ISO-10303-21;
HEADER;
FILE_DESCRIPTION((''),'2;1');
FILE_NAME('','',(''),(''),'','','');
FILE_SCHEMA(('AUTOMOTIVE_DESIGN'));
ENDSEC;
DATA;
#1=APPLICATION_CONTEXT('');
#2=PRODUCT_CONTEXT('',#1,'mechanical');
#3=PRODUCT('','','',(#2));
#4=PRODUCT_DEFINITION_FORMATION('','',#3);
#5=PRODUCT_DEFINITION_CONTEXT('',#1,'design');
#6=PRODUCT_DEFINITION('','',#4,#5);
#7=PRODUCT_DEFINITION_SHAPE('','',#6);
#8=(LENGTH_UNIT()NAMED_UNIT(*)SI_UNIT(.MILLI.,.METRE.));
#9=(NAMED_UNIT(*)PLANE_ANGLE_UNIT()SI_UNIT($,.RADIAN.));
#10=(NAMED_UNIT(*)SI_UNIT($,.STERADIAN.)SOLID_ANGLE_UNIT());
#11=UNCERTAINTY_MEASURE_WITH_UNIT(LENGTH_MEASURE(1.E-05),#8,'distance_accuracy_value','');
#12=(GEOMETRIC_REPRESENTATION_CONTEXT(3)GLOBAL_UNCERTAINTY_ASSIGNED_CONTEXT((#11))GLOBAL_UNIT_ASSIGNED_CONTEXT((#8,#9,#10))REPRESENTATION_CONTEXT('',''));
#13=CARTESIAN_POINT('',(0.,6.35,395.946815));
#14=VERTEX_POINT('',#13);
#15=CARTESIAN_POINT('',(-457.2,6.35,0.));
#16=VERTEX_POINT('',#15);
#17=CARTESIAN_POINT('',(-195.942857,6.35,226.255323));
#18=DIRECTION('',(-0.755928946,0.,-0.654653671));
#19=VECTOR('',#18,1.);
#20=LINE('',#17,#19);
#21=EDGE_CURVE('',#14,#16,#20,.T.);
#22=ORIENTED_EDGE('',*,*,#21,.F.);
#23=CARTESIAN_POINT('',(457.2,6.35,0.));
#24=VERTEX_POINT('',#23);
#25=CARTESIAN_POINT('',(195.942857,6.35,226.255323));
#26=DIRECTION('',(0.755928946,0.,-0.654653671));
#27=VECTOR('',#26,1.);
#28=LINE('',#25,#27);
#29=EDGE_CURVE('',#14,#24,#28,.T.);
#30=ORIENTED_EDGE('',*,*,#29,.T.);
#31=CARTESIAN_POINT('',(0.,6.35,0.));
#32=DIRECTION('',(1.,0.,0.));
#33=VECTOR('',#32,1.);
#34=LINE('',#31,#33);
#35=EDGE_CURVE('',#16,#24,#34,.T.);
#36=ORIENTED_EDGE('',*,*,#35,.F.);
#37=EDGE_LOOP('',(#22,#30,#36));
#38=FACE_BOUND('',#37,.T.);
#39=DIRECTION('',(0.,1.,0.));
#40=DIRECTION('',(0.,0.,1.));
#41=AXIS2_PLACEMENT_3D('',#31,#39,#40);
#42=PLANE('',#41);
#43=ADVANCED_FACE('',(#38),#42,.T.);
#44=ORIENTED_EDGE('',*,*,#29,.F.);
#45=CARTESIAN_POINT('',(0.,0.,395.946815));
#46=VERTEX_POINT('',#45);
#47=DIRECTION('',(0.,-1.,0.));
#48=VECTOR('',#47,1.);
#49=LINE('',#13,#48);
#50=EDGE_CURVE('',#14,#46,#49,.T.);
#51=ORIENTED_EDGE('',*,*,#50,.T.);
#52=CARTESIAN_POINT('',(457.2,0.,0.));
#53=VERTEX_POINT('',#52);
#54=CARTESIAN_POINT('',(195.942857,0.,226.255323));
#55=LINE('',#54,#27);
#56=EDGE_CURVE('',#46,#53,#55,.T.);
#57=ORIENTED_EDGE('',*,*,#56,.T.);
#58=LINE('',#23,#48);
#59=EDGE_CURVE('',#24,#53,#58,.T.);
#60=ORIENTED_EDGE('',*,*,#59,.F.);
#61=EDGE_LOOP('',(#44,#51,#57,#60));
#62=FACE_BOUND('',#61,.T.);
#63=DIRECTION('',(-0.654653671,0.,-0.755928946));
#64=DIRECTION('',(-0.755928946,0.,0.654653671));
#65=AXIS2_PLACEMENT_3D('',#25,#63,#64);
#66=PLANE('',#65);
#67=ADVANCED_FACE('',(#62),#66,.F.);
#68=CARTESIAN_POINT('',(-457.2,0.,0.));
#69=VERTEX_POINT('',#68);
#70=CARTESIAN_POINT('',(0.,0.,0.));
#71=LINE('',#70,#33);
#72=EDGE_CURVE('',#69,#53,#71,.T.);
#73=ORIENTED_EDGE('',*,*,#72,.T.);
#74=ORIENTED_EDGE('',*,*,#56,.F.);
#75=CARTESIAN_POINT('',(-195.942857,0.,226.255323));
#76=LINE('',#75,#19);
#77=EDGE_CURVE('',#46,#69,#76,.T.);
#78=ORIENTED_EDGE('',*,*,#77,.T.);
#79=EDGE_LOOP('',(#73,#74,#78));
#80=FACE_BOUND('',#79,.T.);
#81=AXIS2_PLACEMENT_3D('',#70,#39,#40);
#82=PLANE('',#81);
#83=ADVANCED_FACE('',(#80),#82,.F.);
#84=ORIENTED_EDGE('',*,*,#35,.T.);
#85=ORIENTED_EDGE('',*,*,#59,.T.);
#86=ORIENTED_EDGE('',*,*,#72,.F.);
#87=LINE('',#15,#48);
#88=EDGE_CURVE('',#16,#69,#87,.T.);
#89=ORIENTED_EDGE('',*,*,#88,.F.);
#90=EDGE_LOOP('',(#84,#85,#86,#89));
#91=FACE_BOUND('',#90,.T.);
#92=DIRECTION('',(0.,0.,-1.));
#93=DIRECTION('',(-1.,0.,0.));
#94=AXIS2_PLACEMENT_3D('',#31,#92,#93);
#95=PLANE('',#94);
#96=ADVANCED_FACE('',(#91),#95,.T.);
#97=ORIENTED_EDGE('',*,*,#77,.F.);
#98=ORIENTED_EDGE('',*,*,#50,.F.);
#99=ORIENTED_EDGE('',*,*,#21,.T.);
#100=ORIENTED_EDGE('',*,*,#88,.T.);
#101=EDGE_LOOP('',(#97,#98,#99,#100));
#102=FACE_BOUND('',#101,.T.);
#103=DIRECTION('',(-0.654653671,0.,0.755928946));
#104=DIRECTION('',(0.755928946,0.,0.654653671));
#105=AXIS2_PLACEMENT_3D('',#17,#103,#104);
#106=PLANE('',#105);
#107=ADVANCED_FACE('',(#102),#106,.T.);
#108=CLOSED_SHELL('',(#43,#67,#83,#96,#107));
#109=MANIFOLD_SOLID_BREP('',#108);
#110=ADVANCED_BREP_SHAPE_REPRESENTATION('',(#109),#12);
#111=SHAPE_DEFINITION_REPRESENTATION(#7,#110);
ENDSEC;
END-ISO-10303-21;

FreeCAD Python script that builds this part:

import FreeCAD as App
import Part
import Sketcher
from FreeCAD import Vector
Q = App.Units.Quantity

doc = App.newDocument("Part")
body = doc.addObject("PartDesign::Body", "Body")

# Sketch on XZ plane
sketch1 = doc.addObject("Sketcher::SketchObject", "Sketch")
body.addObject(sketch1)
sketch1.AttachmentSupport = (doc.XZ_Plane, [""])
sketch1.MapMode = "FlatFace"
sketch1.addGeometry([
    Part.LineSegment(Vector(-457, 0, 0), Vector(0, 396, 0)),
    Part.LineSegment(Vector(0, 396, 0), Vector(457, 0, 0)),
    Part.LineSegment(Vector(457, 0, 0), Vector(-457, 0, 0)),
], False)
sketch1.addConstraint([
    Sketcher.Constraint("Coincident", 0, 2, 1, 1),
    Sketcher.Constraint("Coincident", 1, 2, 2, 1),
    Sketcher.Constraint("Coincident", 2, 2, 0, 1),
    Sketcher.Constraint("Horizontal", 2),
    Sketcher.Constraint("Symmetric", 1, 2, 2, 2, -1, 1),
    Sketcher.Constraint("PointOnObject", 0, 2, -2),
    Sketcher.Constraint("DistanceX", 2, 2, 2, 1, Q("36 in")),
    Sketcher.Constraint("Distance", 0, Q("604.81875 mm")),
])
pad1 = doc.addObject("PartDesign::Pad", "Pad")
body.addObject(pad1)
pad1.Profile = sketch1
pad1.Length = Q("0.25 in")
pad1.Reversed = True

doc.recompute()
